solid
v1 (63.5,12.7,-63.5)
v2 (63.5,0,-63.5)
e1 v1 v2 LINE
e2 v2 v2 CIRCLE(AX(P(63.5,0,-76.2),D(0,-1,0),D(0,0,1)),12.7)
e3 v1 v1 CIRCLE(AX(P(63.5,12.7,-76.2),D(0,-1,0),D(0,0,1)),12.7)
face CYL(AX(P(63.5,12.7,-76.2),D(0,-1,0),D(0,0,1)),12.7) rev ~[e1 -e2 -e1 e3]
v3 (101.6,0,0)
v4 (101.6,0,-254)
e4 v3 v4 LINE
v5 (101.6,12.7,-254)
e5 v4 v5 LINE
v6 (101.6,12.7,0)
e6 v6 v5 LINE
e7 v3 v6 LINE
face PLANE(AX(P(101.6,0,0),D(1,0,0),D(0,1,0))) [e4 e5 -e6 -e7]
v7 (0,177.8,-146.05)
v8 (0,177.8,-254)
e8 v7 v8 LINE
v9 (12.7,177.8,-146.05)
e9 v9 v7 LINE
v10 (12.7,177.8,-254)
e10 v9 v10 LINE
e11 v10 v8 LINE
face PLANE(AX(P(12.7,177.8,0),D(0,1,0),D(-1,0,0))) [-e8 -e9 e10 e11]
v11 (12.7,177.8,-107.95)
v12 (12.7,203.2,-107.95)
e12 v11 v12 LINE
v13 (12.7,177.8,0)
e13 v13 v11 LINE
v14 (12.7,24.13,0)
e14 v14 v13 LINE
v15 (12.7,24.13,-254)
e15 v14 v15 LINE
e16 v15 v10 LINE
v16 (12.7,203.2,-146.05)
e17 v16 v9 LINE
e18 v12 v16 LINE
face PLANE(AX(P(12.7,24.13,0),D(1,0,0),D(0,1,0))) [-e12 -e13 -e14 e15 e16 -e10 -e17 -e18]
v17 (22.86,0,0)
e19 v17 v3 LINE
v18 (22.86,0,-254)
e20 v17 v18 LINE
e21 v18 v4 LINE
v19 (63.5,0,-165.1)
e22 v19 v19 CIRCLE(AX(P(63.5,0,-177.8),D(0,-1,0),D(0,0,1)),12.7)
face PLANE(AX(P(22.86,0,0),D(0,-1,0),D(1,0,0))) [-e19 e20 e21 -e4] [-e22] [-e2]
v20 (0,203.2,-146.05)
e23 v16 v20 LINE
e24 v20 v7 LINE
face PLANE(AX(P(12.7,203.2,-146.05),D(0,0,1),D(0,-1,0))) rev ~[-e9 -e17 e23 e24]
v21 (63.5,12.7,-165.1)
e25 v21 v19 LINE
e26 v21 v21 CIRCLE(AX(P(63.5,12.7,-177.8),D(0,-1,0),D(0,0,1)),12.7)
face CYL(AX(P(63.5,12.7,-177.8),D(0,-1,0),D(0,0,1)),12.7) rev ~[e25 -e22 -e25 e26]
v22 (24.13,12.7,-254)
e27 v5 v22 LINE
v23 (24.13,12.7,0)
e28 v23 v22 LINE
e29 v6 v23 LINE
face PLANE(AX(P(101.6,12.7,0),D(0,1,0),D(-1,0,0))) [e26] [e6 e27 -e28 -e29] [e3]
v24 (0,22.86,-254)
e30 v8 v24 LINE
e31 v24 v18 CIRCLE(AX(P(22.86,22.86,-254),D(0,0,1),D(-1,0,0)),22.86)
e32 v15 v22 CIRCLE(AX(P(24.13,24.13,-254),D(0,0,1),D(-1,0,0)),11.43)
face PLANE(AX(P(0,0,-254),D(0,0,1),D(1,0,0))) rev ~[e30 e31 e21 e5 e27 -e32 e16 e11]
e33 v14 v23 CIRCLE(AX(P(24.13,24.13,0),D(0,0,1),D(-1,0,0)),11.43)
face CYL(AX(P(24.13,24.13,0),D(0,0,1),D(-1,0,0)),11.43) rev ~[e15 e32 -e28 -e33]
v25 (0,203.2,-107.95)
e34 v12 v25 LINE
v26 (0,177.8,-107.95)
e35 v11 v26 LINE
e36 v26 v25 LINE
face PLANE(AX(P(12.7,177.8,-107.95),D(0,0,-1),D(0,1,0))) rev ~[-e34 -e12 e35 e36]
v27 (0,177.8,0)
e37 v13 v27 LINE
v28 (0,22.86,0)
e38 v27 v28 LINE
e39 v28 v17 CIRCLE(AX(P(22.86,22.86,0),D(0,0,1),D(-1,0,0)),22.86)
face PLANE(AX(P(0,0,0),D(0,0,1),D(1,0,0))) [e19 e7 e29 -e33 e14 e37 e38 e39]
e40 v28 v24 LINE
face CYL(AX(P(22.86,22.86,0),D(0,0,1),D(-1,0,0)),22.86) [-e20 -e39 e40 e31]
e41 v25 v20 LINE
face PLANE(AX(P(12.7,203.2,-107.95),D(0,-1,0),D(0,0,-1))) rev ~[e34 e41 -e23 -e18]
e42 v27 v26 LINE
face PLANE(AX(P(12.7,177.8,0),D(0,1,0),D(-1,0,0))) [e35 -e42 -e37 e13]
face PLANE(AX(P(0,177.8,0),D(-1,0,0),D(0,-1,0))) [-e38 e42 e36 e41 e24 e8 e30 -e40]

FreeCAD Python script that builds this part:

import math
import FreeCAD as App
import Part
import Sketcher
from FreeCAD import Vector
Q = App.Units.Quantity


def add_polygon(sketch, points):
    """Adds a closed chain of lines whose ends are joined by coincident constraints."""
    first, n = sketch.GeometryCount, len(points)
    for a, b in zip(points, points[1:] + points[:1]):
        sketch.addGeometry(Part.LineSegment(App.Vector(*a, 0), App.Vector(*b, 0)), False)
    for i in range(n):
        sketch.addConstraint(Sketcher.Constraint("Coincident", first + i, 2, first + (i + 1) % n, 1))

doc = App.newDocument("Part")
body = doc.addObject("PartDesign::Body", "Body")

sketch1 = doc.addObject("Sketcher::SketchObject", "Sketch")
body.addObject(sketch1)
sketch1.AttachmentSupport = (doc.XY_Plane, [""])
sketch1.MapMode = "FlatFace"
sketch1.addGeometry([
    Part.LineSegment(Vector(12.7, 177.8, 0), Vector(0, 177.8, 0)),
    Part.LineSegment(Vector(0, 177.8, 0), Vector(0, 22.86, 0)),
    Part.ArcOfCircle(Part.Circle(Vector(22.86, 22.86, 0), Vector(0, 0, 1), 22.86), math.radians(180), math.radians(270)),
    Part.LineSegment(Vector(22.86, 0, 0), Vector(101.6, 0, 0)),
    Part.LineSegment(Vector(101.6, 0, 0), Vector(101.6, 12.7, 0)),
    Part.LineSegment(Vector(101.6, 12.7, 0), Vector(24.13, 12.7, 0)),
    Part.ArcOfCircle(Part.Circle(Vector(24.13, 24.13, 0), Vector(0, 0, 1), 11.43), math.radians(180), math.radians(270)),
    Part.LineSegment(Vector(12.7, 24.13, 0), Vector(12.7, 177.8, 0)),
], False)
sketch1.addConstraint([
    Sketcher.Constraint("Coincident", 0, 2, 1, 1),
    Sketcher.Constraint("Tangent", 1, 2, 2, 1),
    Sketcher.Constraint("Tangent", 2, 2, 3, 1),
    Sketcher.Constraint("Coincident", 3, 2, 4, 1),
    Sketcher.Constraint("Coincident", 4, 2, 5, 1),
    Sketcher.Constraint("Tangent", 5, 2, 6, 2),
    Sketcher.Constraint("Tangent", 6, 1, 7, 1),
    Sketcher.Constraint("Coincident", 7, 2, 0, 1),
    Sketcher.Constraint("Horizontal", 0),
    Sketcher.Constraint("Vertical", 1),
    Sketcher.Constraint("Horizontal", 3),
    Sketcher.Constraint("Vertical", 4),
    Sketcher.Constraint("Horizontal", 5),
    Sketcher.Constraint("Vertical", 7),
    Sketcher.Constraint("PointOnObject", 0, 2, -2),
    Sketcher.Constraint("PointOnObject", 2, 2, -1),
    Sketcher.Constraint("Equal", 0, 4),
    Sketcher.Constraint("Radius", 2, Q("0.9 in")),
    Sketcher.Constraint("Radius", 6, Q("0.45 in")),
    Sketcher.Constraint("DistanceX", 0, 2, 0, 1, Q("0.5 in")),
    Sketcher.Constraint("DistanceY", -1, 1, 0, 2, Q("7 in")),
    Sketcher.Constraint("DistanceX", -1, 1, 3, 2, Q("4 in")),
])
pad1 = doc.addObject("PartDesign::Pad", "Pad")
body.addObject(pad1)
pad1.Profile = sketch1
pad1.Length = Q("10 in")
pad1.Reversed = True

sketch2 = doc.addObject("Sketcher::SketchObject", "Sketch001")
body.addObject(sketch2)
sketch2.AttachmentSupport = (doc.XZ_Plane, [""])
sketch2.MapMode = "FlatFace"
sketch2.AttachmentOffset = App.Placement(Vector(0, 0, -0.5 * 25.4), App.Rotation())
sketch2.addGeometry(Part.Circle(Vector(63.5, -76.2, 0), Vector(0, 0, 1), 12.7), False)
sketch2.addConstraint([
    Sketcher.Constraint("Diameter", 0, Q("1 in")),
    Sketcher.Constraint("DistanceY", 0, 3, -1, 1, Q("3 in")),
    Sketcher.Constraint("DistanceX", -1, 1, 0, 3, Q("2.5 in")),
])
doc.recompute()
hole = doc.addObject("PartDesign::Hole", "Hole")
body.addObject(hole)
hole.Profile = sketch2
hole.ThreadType = "None"
hole.Diameter = Q("1 in")
hole.DepthType = "ThroughAll"
hole.Reversed = True
doc.recompute()

linearpattern = doc.addObject("PartDesign::LinearPattern", "LinearPattern")
body.addObject(linearpattern)
linearpattern.Originals = [hole]
linearpattern.Direction = (doc.Z_Axis, [""])
linearpattern.Mode = "offset"
linearpattern.Offset = Q("4 in")
linearpattern.Occurrences = 2
linearpattern.Reversed = True
body.Tip = linearpattern

sketch3 = doc.addObject("Sketcher::SketchObject", "Sketch002")
body.addObject(sketch3)
sketch3.AttachmentSupport = (doc.YZ_Plane, [""])
sketch3.MapMode = "FlatFace"
sketch3.AttachmentOffset = App.Placement(Vector(0, 0, 0.5 * 25.4), App.Rotation())
add_polygon(sketch3, [(203.2, -107.95), (177.8, -107.95), (177.8, -146.05), (203.2, -146.05)])
sketch3.addConstraint([
    Sketcher.Constraint("Horizontal", 0),
    Sketcher.Constraint("Vertical", 1),
    Sketcher.Constraint("Horizontal", 2),
    Sketcher.Constraint("Vertical", 3),
    Sketcher.Constraint("DistanceX", 0, 2, 0, 1, Q("1 in")),
    Sketcher.Constraint("DistanceY", 1, 2, 1, 1, Q("1.5 in")),
    Sketcher.Constraint("DistanceY", 0, 2, -1, 1, Q("4.25 in")),
    Sketcher.Constraint("DistanceX", -1, 1, 0, 2, Q("7 in")),
])
pad2 = doc.addObject("PartDesign::Pad", "Pad001")
body.addObject(pad2)
pad2.Profile = sketch3
pad2.Length = Q("0.5 in")
pad2.Reversed = True

doc.recompute()
